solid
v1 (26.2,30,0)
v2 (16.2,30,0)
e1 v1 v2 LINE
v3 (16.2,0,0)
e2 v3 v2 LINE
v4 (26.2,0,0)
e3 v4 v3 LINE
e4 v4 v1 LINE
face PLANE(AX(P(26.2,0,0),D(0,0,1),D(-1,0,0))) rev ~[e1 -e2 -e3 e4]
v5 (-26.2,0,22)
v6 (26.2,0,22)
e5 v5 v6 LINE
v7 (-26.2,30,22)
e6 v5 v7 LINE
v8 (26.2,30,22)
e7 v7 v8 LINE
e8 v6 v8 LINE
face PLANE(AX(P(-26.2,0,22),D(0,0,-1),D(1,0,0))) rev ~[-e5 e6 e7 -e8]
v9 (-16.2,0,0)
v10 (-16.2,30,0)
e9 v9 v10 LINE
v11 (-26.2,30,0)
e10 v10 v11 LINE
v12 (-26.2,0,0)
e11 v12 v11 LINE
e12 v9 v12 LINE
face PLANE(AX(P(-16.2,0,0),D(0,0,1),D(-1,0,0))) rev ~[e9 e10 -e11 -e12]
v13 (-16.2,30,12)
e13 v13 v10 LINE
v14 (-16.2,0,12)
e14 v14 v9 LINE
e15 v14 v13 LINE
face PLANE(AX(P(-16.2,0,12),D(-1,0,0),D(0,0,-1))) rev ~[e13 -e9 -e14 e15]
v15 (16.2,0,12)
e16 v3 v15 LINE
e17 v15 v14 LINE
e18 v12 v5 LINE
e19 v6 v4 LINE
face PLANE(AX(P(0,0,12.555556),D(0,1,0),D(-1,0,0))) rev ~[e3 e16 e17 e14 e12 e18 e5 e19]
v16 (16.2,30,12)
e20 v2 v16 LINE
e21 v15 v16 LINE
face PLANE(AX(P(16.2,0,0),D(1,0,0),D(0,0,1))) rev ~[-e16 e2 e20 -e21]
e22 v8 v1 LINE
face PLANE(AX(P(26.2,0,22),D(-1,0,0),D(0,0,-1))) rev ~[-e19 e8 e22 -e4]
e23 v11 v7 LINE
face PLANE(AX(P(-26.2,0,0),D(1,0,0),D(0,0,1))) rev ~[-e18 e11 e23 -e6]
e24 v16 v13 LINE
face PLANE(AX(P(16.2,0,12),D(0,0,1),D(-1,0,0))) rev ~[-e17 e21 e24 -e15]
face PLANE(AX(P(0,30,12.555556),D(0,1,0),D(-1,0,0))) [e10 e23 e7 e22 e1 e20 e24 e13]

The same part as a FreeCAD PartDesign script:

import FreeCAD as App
import Part
import Sketcher

V = App.Vector
Q = App.Units.Quantity

doc = App.newDocument("Part")
body = doc.addObject("PartDesign::Body", "Body")

# Sketch on XY plane
sketch1 = body.newObject("Sketcher::SketchObject", "Sketch")
sketch1.AttachmentSupport = (doc.getObject("XY_Plane"), [""])
sketch1.MapMode = "FlatFace"
sketch1.addGeometry([
    Part.LineSegment(V(26, 22, 0), V(-26, 22, 0)),  # 0
    Part.LineSegment(V(-26, 22, 0), V(-26, 0, 0)),  # 1
    Part.LineSegment(V(-26, 0, 0), V(-16, 0, 0)),  # 2
    Part.LineSegment(V(-16, 0, 0), V(-16, 12, 0)),  # 3
    Part.LineSegment(V(-16, 12, 0), V(16, 12, 0)),  # 4
    Part.LineSegment(V(16, 12, 0), V(16, 0, 0)),  # 5
    Part.LineSegment(V(16, 0, 0), V(26, 0, 0)),  # 6
    Part.LineSegment(V(26, 0, 0), V(26, 22, 0)),  # 7
], False)
sketch1.addConstraint([
    Sketcher.Constraint("Coincident", 0, 2, 1, 1),
    Sketcher.Constraint("Coincident", 1, 2, 2, 1),
    Sketcher.Constraint("Coincident", 2, 2, 3, 1),
    Sketcher.Constraint("Coincident", 3, 2, 4, 1),
    Sketcher.Constraint("Coincident", 4, 2, 5, 1),
    Sketcher.Constraint("Coincident", 5, 2, 6, 1),
    Sketcher.Constraint("Coincident", 6, 2, 7, 1),
    Sketcher.Constraint("Coincident", 7, 2, 0, 1),
    Sketcher.Constraint("Horizontal", 0),
    Sketcher.Constraint("Vertical", 1),
    Sketcher.Constraint("Horizontal", 2),
    Sketcher.Constraint("Vertical", 3),
    Sketcher.Constraint("Horizontal", 4),
    Sketcher.Constraint("Vertical", 5),
    Sketcher.Constraint("Horizontal", 6),
    Sketcher.Constraint("Vertical", 7),
    Sketcher.Constraint("Symmetric", 2, 2, 5, 2, -1, 1),
    Sketcher.Constraint("Symmetric", 1, 2, 6, 2, -2),
    Sketcher.Constraint("DistanceX", 2, 1, 2, 2, Q("10 mm")),
    Sketcher.Constraint("DistanceY", 1, 2, 1, 1, Q("22 mm")),
    Sketcher.Constraint("DistanceY", 3, 1, 3, 2, Q("12 mm")),
    Sketcher.Constraint("DistanceX", 0, 2, 0, 1, Q("52.4 mm")),
])
pad1 = body.newObject("PartDesign::Pad", "Pad")
pad1.Profile = sketch1
pad1.Length = 30
pad1.Reversed = True
body2 = doc.addObject("PartDesign::Body", "Body001")
doc.recompute()

body.Placement = App.Placement(V(0, 0, 0), App.Rotation(V(1, 0, 0), 90))
boolean = body2.newObject("PartDesign::Boolean", "Boolean")
boolean.Type = "Fuse"
boolean.addObjects([body])

doc.recompute()
